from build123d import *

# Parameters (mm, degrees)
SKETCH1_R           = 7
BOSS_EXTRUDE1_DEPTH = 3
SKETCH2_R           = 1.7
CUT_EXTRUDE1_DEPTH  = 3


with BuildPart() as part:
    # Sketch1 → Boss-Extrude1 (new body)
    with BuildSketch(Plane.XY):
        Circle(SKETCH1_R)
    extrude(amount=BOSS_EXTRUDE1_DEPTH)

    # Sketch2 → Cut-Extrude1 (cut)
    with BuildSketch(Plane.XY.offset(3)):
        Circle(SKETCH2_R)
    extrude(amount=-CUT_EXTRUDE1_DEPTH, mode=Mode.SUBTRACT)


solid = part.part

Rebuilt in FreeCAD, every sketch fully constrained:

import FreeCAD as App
import Part
import Sketcher
from FreeCAD import Vector

doc = App.newDocument("Part")
body = doc.addObject("PartDesign::Body", "Body")

# Sketch on XY plane
sketch1 = doc.addObject("Sketcher::SketchObject", "Sketch")
body.addObject(sketch1)
sketch1.AttachmentSupport = (doc.XY_Plane, [""])
sketch1.MapMode = "FlatFace"
sketch1.addGeometry(Part.Circle(Vector(0, 0, 0), Vector(0, 0, 1), 7), False)
sketch1.addConstraint([
    Sketcher.Constraint("Coincident", 0, 3, -1, 1),
    Sketcher.Constraint("Diameter", 0, 14.0),
])
pad1 = doc.addObject("PartDesign::Pad", "Pad")
body.addObject(pad1)
pad1.Profile = sketch1
pad1.Length = 3

# Sketch on XY plane
sketch2 = doc.addObject("Sketcher::SketchObject", "Sketch001")
body.addObject(sketch2)
sketch2.AttachmentSupport = (doc.XY_Plane, [""])
sketch2.MapMode = "FlatFace"
sketch2.AttachmentOffset = App.Placement(Vector(0, 0, 3), App.Rotation())
sketch2.addGeometry(Part.Circle(Vector(0, 0, 0), Vector(0, 0, 1), 1.7), False)
sketch2.addConstraint([
    Sketcher.Constraint("Coincident", 0, 3, -1, 1),
    Sketcher.Constraint("Diameter", 0, 3.4),
])
pocket1 = doc.addObject("PartDesign::Pocket", "Pocket")
body.addObject(pocket1)
pocket1.Profile = sketch2
pocket1.Length = 3

doc.recompute()
